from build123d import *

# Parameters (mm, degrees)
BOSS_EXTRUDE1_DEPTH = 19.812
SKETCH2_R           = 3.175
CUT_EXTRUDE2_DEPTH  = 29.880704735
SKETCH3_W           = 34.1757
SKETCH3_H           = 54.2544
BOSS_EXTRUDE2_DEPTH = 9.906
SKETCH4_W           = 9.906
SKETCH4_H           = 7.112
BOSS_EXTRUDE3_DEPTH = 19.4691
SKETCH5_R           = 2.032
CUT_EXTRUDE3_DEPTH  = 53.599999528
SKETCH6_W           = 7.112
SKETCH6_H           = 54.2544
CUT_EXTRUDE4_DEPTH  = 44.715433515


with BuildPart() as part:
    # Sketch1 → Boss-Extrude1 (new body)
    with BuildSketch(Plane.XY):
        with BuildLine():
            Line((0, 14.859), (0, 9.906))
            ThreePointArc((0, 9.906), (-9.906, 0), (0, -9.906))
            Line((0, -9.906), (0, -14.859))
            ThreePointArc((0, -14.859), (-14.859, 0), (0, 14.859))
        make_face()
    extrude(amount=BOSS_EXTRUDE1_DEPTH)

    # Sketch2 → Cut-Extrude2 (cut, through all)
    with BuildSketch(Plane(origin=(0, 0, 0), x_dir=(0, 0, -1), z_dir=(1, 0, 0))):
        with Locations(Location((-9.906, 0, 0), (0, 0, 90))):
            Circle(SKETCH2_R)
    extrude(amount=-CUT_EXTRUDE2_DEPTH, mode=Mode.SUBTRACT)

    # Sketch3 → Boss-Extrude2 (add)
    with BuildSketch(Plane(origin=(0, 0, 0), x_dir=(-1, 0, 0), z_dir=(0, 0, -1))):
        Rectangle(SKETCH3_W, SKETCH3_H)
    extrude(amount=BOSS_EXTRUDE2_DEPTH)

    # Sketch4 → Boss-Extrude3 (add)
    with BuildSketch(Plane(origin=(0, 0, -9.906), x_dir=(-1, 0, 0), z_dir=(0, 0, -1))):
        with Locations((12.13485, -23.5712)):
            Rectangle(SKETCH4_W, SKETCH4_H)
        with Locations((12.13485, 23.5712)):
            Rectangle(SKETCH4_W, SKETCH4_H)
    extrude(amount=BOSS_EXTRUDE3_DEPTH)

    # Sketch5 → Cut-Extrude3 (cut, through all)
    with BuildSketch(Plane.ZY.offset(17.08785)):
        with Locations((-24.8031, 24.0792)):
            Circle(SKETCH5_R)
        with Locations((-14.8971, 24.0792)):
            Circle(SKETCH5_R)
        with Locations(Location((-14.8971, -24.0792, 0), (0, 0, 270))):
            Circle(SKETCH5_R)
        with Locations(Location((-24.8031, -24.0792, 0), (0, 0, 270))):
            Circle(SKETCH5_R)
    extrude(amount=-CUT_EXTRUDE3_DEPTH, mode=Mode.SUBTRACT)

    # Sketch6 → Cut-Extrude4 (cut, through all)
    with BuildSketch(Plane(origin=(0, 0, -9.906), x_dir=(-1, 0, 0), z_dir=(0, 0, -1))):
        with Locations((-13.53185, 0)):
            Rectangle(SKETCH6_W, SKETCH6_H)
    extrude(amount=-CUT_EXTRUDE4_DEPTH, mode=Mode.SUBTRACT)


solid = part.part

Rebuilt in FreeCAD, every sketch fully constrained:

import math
import FreeCAD as App
import Part
import Sketcher

V = App.Vector
Q = App.Units.Quantity


def add_polygon(sketch, points):
    """Adds a closed chain of lines whose ends are joined by coincident constraints."""
    first, n = sketch.GeometryCount, len(points)
    for a, b in zip(points, points[1:] + points[:1]):
        sketch.addGeometry(Part.LineSegment(App.Vector(*a, 0), App.Vector(*b, 0)), False)
    for i in range(n):
        sketch.addConstraint(Sketcher.Constraint("Coincident", first + i, 2, first + (i + 1) % n, 1))

doc = App.newDocument("Part")
body = doc.addObject("PartDesign::Body", "Body")

# Sketch on XY plane
sketch1 = body.newObject("Sketcher::SketchObject", "Sketch")
sketch1.AttachmentSupport = (doc.getObject("XY_Plane"), [""])
sketch1.MapMode = "FlatFace"
sketch1.addGeometry([
    Part.LineSegment(V(0, 9.9, 0), V(0, 14.9, 0)),
    Part.ArcOfCircle(Part.Circle(V(0, 0, 0), V(0, 0, 1), 14.9), math.radians(90), math.radians(270)),
    Part.LineSegment(V(0, -14.9, 0), V(0, -9.9, 0)),
    Part.ArcOfCircle(Part.Circle(V(0, 0, 0), V(0, 0, 1), 9.9), math.radians(90), math.radians(270)),
], False)
sketch1.addConstraint([
    Sketcher.Constraint("Coincident", 0, 2, 1, 1),
    Sketcher.Constraint("Coincident", 1, 2, 2, 1),
    Sketcher.Constraint("Coincident", 2, 2, 3, 2),
    Sketcher.Constraint("Coincident", 3, 1, 0, 1),
    Sketcher.Constraint("Vertical", 0),
    Sketcher.Constraint("Vertical", 2),
    Sketcher.Constraint("Coincident", 1, 3, -1, 1),
    Sketcher.Constraint("Coincident", 3, 3, -1, 1),
    Sketcher.Constraint("PointOnObject", 0, 2, -2),
    Sketcher.Constraint("PointOnObject", 1, 2, -2),
    Sketcher.Constraint("Radius", 3, Q("0.39 in")),
    Sketcher.Constraint("Radius", 1, Q("0.585 in")),
])
pad1 = body.newObject("PartDesign::Pad", "Pad")
pad1.Profile = sketch1
pad1.Length = Q("0.78 in")

# Sketch on YZ plane
sketch2 = body.newObject("Sketcher::SketchObject", "Sketch001")
sketch2.AttachmentSupport = (doc.getObject("YZ_Plane"), [""])
sketch2.MapMode = "FlatFace"
sketch2.addGeometry(Part.Circle(V(0, 9.9, 0), V(0, 0, 1), 3.2), False)
sketch2.addConstraint([
    Sketcher.Constraint("PointOnObject", 0, 3, -2),
    Sketcher.Constraint("Diameter", 0, Q("0.25 in")),
    Sketcher.Constraint("DistanceY", -1, 1, 0, 3, Q("0.39 in")),
])
pocket1 = body.newObject("PartDesign::Pocket", "Pocket")
pocket1.Profile = sketch2
pocket1.Type = "ThroughAll"

# Sketch on XY plane
sketch3 = body.newObject("Sketcher::SketchObject", "Sketch002")
sketch3.AttachmentSupport = (doc.getObject("XY_Plane"), [""])
sketch3.MapMode = "FlatFace"
add_polygon(sketch3, [(17, 27), (17, -27), (-17, -27), (-17, 27)])  # lines 0-3
sketch3.addConstraint([
    Sketcher.Constraint("Vertical", 0),
    Sketcher.Constraint("Horizontal", 1),
    Sketcher.Constraint("Vertical", 2),
    Sketcher.Constraint("Horizontal", 3),
    Sketcher.Constraint("Symmetric", 0, 2, 2, 2, -1, 1),
    Sketcher.Constraint("DistanceY", 0, 2, 0, 1, Q("2.136 in")),
    Sketcher.Constraint("DistanceX", 1, 2, 1, 1, Q("1.3455 in")),
])
pad2 = body.newObject("PartDesign::Pad", "Pad001")
pad2.Profile = sketch3
pad2.Length = Q("0.39 in")
pad2.Reversed = True

# Sketch on XY plane
sketch4 = body.newObject("Sketcher::SketchObject", "Sketch003")
sketch4.AttachmentSupport = (doc.getObject("XY_Plane"), [""])
sketch4.MapMode = "FlatFace"
sketch4.AttachmentOffset = App.Placement(V(0, 0, -0.39 * 25.4), App.Rotation())
add_polygon(sketch4, [(-7, -20), (-7, -27), (-17, -27), (-17, -20)])  # lines 0-3
add_polygon(sketch4, [(-7, 27), (-7, 20), (-17, 20), (-17, 27)])  # lines 4-7
sketch4.addConstraint([
    Sketcher.Constraint("Vertical", 0),
    Sketcher.Constraint("Horizontal", 1),
    Sketcher.Constraint("Vertical", 2),
    Sketcher.Constraint("Horizontal", 3),
    Sketcher.Constraint("Vertical", 4),
    Sketcher.Constraint("Horizontal", 5),
    Sketcher.Constraint("Vertical", 6),
    Sketcher.Constraint("Horizontal", 7),
    Sketcher.Constraint("Symmetric", 3, 2, 4, 2, -1),
    Sketcher.Constraint("Symmetric", 1, 2, 6, 2, -1),
    Sketcher.Constraint("DistanceX", 1, 2, 1, 1, Q("0.39 in")),
    Sketcher.Constraint("DistanceY", 0, 2, 0, 1, Q("0.28 in")),
    Sketcher.Constraint("DistanceY", 0, 2, -1, 1, Q("1.068 in")),
    Sketcher.Constraint("DistanceX", 0, 2, -1, 1, Q("7.18185 mm")),
])
pad3 = body.newObject("PartDesign::Pad", "Pad002")
pad3.Profile = sketch4
pad3.Length = Q("0.7665 in")
pad3.Reversed = True

# Sketch on YZ plane
sketch5 = body.newObject("Sketcher::SketchObject", "Sketch004")
sketch5.AttachmentSupport = (doc.getObject("YZ_Plane"), [""])
sketch5.MapMode = "FlatFace"
sketch5.AttachmentOffset = App.Placement(V(0, 0, -17.08785), App.Rotation())
sketch5.addGeometry([
    Part.Circle(V(24.1, -24.8, 0), V(0, 0, 1), 2),
    Part.Circle(V(24.1, -14.9, 0), V(0, 0, 1), 2),
    Part.Circle(V(-24.1, -14.9, 0), V(0, 0, 1), 2),
    Part.Circle(V(-24.1, -24.8, 0), V(0, 0, 1), 2),
], False)
sketch5.addConstraint([
    Sketcher.Constraint("Equal", 0, 1),
    Sketcher.Constraint("Equal", 1, 2),
    Sketcher.Constraint("Equal", 2, 3),
    Sketcher.Constraint("Symmetric", 1, 3, 2, 3, -2),
    Sketcher.Constraint("Symmetric", 0, 3, 3, 3, -2),
    Sketcher.Constraint("Vertical", 0, 3, 1, 3),
    Sketcher.Constraint("Diameter", 0, Q("0.16 in")),
    Sketcher.Constraint("DistanceY", 0, 3, 1, 3, Q("0.39 in")),
    Sketcher.Constraint("DistanceX", -1, 1, 0, 3, Q("0.948 in")),
    Sketcher.Constraint("DistanceY", 0, 3, -1, 1, Q("0.9765 in")),
])
pocket2 = body.newObject("PartDesign::Pocket", "Pocket001")
pocket2.Profile = sketch5
pocket2.Type = "ThroughAll"
pocket2.Reversed = True

# Sketch on XY plane
sketch6 = body.newObject("Sketcher::SketchObject", "Sketch005")
sketch6.AttachmentSupport = (doc.getObject("XY_Plane"), [""])
sketch6.MapMode = "FlatFace"
sketch6.AttachmentOffset = App.Placement(V(0, 0, -0.39 * 25.4), App.Rotation())
add_polygon(sketch6, [(17, 27), (17, -27), (10, -27), (10, 27)])  # lines 0-3
sketch6.addConstraint([
    Sketcher.Constraint("Vertical", 0),
    Sketcher.Constraint("Horizontal", 1),
    Sketcher.Constraint("Vertical", 2),
    Sketcher.Constraint("Horizontal", 3),
    Sketcher.Constraint("DistanceX", 1, 2, 1, 1, Q("0.28 in")),
    Sketcher.Constraint("DistanceY", 0, 2, 0, 1, Q("2.136 in")),
    Sketcher.Constraint("DistanceY", 0, 2, -1, 1, Q("1.068 in")),
    Sketcher.Constraint("DistanceX", -1, 1, 0, 2, Q("17.08785 mm")),
])
pocket3 = body.newObject("PartDesign::Pocket", "Pocket002")
pocket3.Profile = sketch6
pocket3.Type = "ThroughAll"
pocket3.Reversed = True

doc.recompute()
